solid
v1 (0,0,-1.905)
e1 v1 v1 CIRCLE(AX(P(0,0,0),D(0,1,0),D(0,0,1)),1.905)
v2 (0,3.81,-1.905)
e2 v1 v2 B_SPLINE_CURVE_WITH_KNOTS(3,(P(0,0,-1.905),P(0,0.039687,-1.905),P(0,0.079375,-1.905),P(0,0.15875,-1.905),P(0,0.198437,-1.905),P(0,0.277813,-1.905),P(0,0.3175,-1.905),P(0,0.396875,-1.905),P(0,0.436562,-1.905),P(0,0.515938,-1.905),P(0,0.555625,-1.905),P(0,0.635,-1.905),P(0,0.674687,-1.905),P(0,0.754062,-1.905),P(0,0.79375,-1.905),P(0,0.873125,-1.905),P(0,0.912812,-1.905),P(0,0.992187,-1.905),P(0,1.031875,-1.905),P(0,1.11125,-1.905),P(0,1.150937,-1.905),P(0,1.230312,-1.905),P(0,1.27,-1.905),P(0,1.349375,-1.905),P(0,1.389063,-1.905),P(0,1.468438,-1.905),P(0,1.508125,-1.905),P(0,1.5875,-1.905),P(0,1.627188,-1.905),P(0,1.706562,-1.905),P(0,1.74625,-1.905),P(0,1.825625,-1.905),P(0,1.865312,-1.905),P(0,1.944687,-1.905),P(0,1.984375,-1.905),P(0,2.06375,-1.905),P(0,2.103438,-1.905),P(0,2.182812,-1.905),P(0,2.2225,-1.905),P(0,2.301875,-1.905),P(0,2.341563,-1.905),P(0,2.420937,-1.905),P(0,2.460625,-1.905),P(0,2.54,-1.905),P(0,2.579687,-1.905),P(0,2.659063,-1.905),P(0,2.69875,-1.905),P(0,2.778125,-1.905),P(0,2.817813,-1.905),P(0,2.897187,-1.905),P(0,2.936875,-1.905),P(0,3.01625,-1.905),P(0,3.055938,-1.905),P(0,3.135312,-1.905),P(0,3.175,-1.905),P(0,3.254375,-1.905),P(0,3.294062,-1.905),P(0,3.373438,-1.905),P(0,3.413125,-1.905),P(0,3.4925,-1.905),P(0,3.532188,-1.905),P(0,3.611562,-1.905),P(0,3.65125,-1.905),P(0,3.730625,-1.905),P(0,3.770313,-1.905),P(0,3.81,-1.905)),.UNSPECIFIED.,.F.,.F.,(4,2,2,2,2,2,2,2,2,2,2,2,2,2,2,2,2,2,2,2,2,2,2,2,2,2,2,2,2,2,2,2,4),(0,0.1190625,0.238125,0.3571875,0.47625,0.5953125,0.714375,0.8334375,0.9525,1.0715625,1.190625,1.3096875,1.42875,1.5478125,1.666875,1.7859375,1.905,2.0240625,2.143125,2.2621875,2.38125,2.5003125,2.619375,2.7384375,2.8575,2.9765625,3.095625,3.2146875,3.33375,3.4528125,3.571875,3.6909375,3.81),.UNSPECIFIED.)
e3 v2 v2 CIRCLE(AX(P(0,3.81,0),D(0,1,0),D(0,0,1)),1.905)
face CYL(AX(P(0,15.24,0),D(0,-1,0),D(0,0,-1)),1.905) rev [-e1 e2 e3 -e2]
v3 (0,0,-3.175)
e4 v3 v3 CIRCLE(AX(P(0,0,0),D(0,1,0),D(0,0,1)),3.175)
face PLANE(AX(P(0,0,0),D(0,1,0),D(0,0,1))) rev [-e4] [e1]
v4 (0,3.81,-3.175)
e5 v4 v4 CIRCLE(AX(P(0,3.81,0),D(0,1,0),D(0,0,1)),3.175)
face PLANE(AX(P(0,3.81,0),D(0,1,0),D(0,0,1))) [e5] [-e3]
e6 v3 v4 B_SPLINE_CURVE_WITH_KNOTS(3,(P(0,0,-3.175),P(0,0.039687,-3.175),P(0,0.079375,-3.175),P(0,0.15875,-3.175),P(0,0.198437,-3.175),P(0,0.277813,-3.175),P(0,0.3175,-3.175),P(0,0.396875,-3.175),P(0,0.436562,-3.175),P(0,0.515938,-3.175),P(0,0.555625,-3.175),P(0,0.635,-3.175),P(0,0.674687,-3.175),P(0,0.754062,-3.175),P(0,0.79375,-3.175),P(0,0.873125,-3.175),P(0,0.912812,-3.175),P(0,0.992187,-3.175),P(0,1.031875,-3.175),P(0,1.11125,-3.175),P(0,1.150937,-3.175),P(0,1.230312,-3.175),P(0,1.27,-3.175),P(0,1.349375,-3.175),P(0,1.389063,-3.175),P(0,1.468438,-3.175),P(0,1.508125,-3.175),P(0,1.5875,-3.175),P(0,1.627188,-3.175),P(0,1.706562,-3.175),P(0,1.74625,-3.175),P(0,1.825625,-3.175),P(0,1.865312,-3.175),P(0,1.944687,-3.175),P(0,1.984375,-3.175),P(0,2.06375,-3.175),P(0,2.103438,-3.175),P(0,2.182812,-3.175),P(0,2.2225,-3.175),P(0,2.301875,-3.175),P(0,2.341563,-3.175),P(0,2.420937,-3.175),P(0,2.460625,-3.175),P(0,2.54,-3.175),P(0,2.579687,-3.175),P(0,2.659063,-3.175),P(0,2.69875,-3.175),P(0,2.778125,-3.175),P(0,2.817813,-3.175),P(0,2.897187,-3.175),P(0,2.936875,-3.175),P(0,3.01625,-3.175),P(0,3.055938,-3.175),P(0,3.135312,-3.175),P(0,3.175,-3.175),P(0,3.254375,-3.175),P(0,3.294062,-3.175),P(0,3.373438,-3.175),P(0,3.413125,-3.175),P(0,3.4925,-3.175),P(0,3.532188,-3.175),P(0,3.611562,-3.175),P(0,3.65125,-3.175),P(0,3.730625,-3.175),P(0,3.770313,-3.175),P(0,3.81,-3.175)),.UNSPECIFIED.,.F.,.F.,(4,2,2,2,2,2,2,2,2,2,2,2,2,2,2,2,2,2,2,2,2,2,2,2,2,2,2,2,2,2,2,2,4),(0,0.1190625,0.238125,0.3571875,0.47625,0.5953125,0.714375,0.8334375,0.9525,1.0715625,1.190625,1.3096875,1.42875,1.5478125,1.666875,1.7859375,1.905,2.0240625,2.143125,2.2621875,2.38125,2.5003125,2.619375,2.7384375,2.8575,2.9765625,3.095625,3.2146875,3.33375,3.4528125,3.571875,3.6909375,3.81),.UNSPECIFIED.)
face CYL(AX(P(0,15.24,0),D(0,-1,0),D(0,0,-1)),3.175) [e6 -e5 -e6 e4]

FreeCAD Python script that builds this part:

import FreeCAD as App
import Part
import Sketcher

V = App.Vector
Q = App.Units.Quantity

doc = App.newDocument("Part")
body = doc.addObject("PartDesign::Body", "Body")

sketch1 = doc.addObject("Sketcher::SketchObject", "Sketch")
body.addObject(sketch1)
sketch1.AttachmentSupport = (doc.XZ_Plane, [""])
sketch1.MapMode = "FlatFace"
sketch1.addGeometry(Part.Circle(V(0, 0, 0), V(0, 0, 1), 3.2), False)
sketch1.addGeometry(Part.Circle(V(0, 0, 0), V(0, 0, 1), 1.9), False)
sketch1.addConstraint(Sketcher.Constraint("Coincident", 0, 3, -1, 1))
sketch1.addConstraint(Sketcher.Constraint("Coincident", 1, 3, -1, 1))
sketch1.addConstraint(Sketcher.Constraint("Diameter", 0, Q("0.25 in")))
sketch1.addConstraint(Sketcher.Constraint("Diameter", 1, Q("0.15 in")))
pad1 = doc.addObject("PartDesign::Pad", "Pad")
body.addObject(pad1)
pad1.Profile = sketch1
pad1.Length = Q("0.6 in")
pad1.Reversed = True

sketch2 = doc.addObject("Sketcher::SketchObject", "Sketch001")
body.addObject(sketch2)
sketch2.AttachmentSupport = (doc.XZ_Plane, [""])
sketch2.MapMode = "FlatFace"
sketch2.AttachmentOffset = App.Placement(V(0, 0, -0.6 * 25.4), App.Rotation())
sketch2.addGeometry(Part.Circle(V(0, 0, 0), V(0, 0, 1), 3.6), False)
sketch2.addConstraint(Sketcher.Constraint("Coincident", 0, 3, -1, 1))
sketch2.addConstraint(Sketcher.Constraint("Diameter", 0, Q("7.202355 mm")))
pocket1 = doc.addObject("PartDesign::Pocket", "Pocket")
body.addObject(pocket1)
pocket1.Profile = sketch2
pocket1.Length = Q("0.45 in")
pocket1.Reversed = True

doc.recompute()
